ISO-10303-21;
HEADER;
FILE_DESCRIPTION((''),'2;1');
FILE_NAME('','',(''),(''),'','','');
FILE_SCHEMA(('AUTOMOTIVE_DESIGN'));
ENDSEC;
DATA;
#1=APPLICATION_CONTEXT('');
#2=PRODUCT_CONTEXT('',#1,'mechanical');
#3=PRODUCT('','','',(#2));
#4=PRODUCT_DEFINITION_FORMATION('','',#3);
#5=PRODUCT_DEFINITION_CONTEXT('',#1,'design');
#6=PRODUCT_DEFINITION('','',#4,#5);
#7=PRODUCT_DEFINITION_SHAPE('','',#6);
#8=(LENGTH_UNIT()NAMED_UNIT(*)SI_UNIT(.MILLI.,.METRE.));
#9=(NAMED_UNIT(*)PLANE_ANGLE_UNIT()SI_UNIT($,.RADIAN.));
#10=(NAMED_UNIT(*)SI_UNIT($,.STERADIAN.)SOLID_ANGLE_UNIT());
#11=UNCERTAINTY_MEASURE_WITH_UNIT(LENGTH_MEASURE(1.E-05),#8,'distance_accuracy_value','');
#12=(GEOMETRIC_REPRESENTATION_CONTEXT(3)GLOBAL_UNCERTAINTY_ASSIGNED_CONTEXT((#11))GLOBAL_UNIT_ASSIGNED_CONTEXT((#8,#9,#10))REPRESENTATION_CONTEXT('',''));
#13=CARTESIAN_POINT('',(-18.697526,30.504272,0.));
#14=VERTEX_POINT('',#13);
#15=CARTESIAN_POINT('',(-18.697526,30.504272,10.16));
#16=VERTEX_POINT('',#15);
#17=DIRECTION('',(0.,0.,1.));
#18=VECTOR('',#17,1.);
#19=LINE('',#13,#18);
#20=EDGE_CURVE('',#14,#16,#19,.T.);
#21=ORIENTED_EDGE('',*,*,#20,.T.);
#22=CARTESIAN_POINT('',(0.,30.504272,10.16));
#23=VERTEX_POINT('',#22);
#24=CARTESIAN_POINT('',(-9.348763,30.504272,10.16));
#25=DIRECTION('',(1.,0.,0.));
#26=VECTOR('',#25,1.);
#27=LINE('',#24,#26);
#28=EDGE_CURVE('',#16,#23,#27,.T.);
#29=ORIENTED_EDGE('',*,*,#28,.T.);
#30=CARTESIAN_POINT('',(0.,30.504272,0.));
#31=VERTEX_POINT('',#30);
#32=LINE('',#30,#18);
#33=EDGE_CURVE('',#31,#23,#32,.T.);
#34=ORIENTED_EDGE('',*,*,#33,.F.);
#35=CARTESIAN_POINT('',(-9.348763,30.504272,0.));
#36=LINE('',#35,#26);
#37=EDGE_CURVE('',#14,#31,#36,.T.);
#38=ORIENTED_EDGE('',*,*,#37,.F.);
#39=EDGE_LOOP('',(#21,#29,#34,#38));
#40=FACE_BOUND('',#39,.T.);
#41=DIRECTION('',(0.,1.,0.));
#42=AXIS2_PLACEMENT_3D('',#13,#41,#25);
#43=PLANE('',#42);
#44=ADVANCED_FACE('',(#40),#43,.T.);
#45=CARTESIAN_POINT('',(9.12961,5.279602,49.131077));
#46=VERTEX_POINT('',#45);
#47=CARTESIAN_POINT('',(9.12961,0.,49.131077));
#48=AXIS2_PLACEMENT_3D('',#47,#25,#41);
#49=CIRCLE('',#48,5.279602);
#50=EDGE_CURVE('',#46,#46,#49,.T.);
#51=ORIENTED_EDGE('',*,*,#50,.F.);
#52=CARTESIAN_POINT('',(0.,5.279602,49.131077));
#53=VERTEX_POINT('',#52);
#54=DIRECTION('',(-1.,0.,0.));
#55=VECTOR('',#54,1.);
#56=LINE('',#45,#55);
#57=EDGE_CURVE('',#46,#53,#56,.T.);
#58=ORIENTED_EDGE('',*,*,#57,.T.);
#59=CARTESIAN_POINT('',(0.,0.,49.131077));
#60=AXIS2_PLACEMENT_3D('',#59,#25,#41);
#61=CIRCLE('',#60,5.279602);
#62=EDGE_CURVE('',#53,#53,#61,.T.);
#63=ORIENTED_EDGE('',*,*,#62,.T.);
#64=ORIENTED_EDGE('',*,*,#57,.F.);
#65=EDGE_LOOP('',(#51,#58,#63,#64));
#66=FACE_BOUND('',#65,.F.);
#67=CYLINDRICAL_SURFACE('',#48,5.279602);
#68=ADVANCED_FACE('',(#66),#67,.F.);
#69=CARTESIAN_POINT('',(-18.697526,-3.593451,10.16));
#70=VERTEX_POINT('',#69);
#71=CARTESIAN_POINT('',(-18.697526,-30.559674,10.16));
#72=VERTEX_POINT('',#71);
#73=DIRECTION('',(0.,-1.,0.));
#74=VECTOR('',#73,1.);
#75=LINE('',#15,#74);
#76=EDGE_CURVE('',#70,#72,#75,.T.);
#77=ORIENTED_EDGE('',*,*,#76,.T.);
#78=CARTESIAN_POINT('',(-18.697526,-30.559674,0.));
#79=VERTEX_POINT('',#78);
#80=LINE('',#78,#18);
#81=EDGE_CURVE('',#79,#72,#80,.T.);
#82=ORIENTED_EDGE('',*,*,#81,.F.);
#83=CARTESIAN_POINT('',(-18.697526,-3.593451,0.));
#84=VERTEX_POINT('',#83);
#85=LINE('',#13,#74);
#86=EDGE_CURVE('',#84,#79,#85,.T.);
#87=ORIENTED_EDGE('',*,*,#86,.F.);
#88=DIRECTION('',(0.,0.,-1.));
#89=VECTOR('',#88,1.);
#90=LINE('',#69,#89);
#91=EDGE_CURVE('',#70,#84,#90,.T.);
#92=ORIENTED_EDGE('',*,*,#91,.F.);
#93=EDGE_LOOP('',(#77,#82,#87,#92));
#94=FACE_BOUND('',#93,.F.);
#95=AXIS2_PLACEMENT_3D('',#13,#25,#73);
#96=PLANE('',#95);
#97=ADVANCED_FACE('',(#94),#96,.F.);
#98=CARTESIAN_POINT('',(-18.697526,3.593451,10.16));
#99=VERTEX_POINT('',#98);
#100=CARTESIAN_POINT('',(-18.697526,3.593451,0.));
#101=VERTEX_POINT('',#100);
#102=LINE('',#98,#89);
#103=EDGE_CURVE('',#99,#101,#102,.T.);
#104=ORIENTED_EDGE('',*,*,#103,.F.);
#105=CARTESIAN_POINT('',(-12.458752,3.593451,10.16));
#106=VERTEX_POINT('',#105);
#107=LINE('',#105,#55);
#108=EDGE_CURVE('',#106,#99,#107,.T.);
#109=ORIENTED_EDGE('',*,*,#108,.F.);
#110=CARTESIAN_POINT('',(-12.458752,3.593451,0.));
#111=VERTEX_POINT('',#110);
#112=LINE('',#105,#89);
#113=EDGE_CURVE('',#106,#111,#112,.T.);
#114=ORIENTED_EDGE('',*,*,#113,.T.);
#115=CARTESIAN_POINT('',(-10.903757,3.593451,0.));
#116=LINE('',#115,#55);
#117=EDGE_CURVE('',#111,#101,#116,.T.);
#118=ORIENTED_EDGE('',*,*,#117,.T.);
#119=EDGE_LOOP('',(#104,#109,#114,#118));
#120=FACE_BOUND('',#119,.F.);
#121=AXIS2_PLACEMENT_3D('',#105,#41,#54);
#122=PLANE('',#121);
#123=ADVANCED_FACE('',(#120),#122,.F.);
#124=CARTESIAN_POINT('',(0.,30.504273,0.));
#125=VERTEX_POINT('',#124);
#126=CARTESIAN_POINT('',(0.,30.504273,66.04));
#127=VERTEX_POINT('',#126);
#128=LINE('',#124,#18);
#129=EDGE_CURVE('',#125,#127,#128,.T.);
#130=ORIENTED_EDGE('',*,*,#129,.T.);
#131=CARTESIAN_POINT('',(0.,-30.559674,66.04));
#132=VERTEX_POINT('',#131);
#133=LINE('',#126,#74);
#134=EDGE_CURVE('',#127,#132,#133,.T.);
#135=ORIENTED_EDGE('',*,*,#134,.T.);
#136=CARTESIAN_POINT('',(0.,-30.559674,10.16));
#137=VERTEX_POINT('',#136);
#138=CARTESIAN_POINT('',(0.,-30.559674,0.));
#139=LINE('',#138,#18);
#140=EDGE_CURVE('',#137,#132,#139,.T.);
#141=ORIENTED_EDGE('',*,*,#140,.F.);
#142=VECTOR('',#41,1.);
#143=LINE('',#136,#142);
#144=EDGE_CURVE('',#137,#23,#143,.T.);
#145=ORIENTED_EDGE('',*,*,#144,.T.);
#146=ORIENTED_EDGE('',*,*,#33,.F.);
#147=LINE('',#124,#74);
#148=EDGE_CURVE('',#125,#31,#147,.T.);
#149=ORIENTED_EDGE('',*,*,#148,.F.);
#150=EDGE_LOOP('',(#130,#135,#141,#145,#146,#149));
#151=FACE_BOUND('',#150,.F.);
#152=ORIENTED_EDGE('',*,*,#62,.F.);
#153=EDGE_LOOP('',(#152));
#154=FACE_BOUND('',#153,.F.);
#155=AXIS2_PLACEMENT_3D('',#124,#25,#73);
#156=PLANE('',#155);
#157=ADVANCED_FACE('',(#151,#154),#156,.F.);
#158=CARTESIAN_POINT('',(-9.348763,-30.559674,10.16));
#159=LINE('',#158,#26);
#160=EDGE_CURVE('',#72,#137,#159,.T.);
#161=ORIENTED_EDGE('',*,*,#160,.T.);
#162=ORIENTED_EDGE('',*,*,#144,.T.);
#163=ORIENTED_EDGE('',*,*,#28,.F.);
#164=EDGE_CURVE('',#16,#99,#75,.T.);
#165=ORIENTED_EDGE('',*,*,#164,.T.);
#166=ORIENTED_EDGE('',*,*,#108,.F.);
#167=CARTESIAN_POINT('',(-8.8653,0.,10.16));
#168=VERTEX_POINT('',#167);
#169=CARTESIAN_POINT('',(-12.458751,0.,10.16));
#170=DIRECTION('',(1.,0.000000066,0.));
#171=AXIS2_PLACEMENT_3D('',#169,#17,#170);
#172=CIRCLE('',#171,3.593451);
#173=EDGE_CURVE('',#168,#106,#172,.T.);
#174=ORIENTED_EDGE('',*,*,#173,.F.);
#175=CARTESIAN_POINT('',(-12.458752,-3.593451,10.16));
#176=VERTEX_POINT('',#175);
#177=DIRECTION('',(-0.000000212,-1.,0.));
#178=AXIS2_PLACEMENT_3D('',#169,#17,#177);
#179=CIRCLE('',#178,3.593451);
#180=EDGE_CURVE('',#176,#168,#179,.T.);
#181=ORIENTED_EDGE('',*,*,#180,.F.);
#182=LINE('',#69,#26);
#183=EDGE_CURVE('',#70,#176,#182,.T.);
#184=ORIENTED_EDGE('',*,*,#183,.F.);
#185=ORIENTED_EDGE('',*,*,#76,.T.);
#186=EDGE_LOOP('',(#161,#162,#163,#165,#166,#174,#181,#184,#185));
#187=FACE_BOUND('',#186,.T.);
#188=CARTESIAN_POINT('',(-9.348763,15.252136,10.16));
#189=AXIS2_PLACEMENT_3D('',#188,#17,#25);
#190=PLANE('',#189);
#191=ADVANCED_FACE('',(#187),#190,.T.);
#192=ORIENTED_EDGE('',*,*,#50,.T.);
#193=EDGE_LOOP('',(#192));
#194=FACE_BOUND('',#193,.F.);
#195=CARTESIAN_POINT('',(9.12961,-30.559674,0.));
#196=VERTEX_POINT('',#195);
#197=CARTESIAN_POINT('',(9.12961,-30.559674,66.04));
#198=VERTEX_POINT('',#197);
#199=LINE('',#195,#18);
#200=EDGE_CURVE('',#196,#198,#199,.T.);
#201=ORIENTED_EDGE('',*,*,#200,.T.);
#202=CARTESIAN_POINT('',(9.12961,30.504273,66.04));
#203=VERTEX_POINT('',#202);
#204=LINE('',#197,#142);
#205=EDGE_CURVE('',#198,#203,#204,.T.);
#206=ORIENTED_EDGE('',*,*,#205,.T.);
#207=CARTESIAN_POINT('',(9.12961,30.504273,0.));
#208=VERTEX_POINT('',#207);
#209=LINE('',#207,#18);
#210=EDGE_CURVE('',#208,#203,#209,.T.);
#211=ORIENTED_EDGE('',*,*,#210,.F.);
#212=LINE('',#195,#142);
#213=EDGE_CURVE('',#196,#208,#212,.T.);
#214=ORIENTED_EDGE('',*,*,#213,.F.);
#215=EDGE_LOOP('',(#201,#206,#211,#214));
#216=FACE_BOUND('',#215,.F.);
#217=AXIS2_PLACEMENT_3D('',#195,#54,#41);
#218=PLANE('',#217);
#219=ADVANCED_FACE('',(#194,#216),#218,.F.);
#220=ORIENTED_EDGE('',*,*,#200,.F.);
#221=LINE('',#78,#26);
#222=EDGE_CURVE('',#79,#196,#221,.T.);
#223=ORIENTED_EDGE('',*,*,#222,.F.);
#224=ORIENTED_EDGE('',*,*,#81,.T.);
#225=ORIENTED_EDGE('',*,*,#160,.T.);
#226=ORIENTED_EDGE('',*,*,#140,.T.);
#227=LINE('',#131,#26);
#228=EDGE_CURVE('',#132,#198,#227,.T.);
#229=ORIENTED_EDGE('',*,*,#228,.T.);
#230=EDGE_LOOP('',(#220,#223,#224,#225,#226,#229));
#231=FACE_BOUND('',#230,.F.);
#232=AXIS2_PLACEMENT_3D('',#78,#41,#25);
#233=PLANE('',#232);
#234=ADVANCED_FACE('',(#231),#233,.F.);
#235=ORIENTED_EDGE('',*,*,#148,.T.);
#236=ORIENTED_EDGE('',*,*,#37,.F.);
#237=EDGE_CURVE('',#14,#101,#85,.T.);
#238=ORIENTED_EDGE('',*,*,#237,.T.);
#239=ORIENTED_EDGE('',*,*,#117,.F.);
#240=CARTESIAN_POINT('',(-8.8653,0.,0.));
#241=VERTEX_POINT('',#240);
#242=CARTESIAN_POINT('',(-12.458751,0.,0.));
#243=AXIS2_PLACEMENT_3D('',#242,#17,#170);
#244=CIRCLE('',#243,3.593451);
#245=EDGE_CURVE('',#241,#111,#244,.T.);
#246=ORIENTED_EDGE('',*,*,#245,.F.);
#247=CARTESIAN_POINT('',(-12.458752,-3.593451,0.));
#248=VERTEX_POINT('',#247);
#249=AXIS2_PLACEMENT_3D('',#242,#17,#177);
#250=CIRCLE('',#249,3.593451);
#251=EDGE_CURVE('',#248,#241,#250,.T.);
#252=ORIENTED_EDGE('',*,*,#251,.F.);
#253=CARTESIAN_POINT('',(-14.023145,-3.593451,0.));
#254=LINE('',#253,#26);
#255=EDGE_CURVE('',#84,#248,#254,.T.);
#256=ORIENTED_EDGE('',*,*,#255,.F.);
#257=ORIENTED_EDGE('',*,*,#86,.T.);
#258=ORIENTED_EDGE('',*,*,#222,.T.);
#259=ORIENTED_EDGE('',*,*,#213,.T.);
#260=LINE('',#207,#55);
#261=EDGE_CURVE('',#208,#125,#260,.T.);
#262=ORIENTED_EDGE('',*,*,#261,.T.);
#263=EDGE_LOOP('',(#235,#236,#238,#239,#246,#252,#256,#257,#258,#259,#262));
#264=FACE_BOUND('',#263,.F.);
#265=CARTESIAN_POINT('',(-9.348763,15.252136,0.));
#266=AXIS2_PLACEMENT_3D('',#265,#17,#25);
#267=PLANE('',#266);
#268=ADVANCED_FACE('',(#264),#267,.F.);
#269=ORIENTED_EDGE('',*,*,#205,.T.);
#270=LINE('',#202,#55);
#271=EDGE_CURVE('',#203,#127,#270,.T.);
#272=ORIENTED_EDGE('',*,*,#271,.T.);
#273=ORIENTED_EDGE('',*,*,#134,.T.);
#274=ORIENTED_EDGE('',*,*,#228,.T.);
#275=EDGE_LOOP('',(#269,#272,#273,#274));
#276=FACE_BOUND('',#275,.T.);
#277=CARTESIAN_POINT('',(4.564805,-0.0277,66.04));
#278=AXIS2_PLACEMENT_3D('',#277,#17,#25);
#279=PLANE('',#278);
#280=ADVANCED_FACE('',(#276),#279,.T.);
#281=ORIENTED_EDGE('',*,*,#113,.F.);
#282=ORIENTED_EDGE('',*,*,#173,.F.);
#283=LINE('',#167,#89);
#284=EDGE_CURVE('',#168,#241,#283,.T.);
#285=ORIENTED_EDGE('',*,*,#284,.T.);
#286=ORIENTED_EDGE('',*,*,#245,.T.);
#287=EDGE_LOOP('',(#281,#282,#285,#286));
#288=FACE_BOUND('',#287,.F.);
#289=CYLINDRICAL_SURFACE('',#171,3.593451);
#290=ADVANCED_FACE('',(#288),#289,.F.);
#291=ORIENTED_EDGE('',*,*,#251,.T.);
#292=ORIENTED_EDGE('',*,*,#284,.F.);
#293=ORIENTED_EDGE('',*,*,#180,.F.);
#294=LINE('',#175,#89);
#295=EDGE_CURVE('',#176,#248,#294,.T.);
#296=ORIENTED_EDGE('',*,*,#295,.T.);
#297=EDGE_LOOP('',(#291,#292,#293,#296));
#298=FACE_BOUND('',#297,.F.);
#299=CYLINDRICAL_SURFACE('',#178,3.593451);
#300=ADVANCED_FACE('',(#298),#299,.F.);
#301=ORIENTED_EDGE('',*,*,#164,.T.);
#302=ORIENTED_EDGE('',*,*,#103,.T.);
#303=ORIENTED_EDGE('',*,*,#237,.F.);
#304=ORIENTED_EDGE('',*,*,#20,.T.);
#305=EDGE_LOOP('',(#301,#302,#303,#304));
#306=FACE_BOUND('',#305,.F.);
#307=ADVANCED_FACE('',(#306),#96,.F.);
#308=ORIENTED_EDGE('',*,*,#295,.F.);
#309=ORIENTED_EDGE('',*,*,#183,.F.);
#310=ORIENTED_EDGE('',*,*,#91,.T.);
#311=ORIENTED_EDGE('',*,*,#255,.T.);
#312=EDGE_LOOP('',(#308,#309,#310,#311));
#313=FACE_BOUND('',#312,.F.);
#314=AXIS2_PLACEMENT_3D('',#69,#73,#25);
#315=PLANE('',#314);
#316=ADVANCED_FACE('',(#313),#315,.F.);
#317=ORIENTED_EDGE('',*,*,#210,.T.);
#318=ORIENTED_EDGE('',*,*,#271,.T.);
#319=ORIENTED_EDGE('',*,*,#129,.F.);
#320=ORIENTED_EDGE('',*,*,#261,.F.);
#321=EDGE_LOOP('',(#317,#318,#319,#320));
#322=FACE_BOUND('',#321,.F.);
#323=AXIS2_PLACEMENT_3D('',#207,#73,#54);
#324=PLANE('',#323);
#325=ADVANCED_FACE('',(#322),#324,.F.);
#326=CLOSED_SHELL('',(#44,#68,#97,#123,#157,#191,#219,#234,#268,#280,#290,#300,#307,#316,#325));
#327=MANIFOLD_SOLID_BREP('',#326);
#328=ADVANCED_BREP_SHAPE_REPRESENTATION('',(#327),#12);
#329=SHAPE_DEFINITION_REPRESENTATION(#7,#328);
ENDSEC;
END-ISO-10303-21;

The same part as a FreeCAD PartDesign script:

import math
import FreeCAD as App
import Part
import Sketcher

V = App.Vector
Q = App.Units.Quantity


def add_polygon(sketch, points):
    """Adds a closed chain of lines whose ends are joined by coincident constraints."""
    first, n = sketch.GeometryCount, len(points)
    for a, b in zip(points, points[1:] + points[:1]):
        sketch.addGeometry(Part.LineSegment(App.Vector(*a, 0), App.Vector(*b, 0)), False)
    for i in range(n):
        sketch.addConstraint(Sketcher.Constraint("Coincident", first + i, 2, first + (i + 1) % n, 1))

doc = App.newDocument("Part")
params = doc.addObject("Spreadsheet::Sheet", "Params")
for row, (alias, value) in enumerate([
    ("pad1_length", "2.6 in"),
    ("pad2_length", "0.4 in"),
    ("pocket1_length", "1 in"),
    ("pocket2_length", "1 in"),
], start=1):
    params.set(f"A{row}", alias)
    params.set(f"B{row}", "=" + value)
    params.setAlias(f"B{row}", alias)

body = doc.addObject("PartDesign::Body", "Body")

# Sketch on XY plane
sketch1 = body.newObject("Sketcher::SketchObject", "Sketch")
sketch1.AttachmentSupport = (doc.getObject("XY_Plane"), [""])
sketch1.MapMode = "FlatFace"
add_polygon(sketch1, [(0, 30.504273), (0, -30.559674), (9.12961, -30.559674), (9.12961, 30.504273)])  # lines 0-3
sketch1.addConstraint(Sketcher.Constraint("Vertical", 0))
sketch1.addConstraint(Sketcher.Constraint("Horizontal", 1))
sketch1.addConstraint(Sketcher.Constraint("Vertical", 2))
sketch1.addConstraint(Sketcher.Constraint("Horizontal", 3))
sketch1.addConstraint(Sketcher.Constraint("PointOnObject", 0, 2, -2))
sketch1.addConstraint(Sketcher.Constraint("DistanceX", 1, 1, 1, 2, Q("9.12961 mm")))
sketch1.addConstraint(Sketcher.Constraint("DistanceY", 0, 2, 0, 1, Q("61.063947 mm")))
sketch1.addConstraint(Sketcher.Constraint("DistanceY", 0, 2, -1, 1, Q("30.559674 mm")))
pad1 = body.newObject("PartDesign::Pad", "Pad")
pad1.Profile = sketch1
pad1.setExpression("Length", "Params.pad1_length")

# Sketch on XY plane
sketch2 = body.newObject("Sketcher::SketchObject", "Sketch001")
sketch2.AttachmentSupport = (doc.getObject("XY_Plane"), [""])
sketch2.MapMode = "FlatFace"
add_polygon(sketch2, [(-18.697526, -30.559674), (0, -30.559674), (0, 30.504272), (-18.697526, 30.504272)])  # lines 0-3
sketch2.addConstraint(Sketcher.Constraint("Horizontal", 0))
sketch2.addConstraint(Sketcher.Constraint("Vertical", 1))
sketch2.addConstraint(Sketcher.Constraint("Horizontal", 2))
sketch2.addConstraint(Sketcher.Constraint("Vertical", 3))
sketch2.addConstraint(Sketcher.Constraint("PointOnObject", 0, 2, -2))
sketch2.addConstraint(Sketcher.Constraint("DistanceX", 0, 1, 0, 2, Q("18.697526 mm")))
sketch2.addConstraint(Sketcher.Constraint("DistanceY", 1, 1, 1, 2, Q("61.063947 mm")))
sketch2.addConstraint(Sketcher.Constraint("DistanceY", 0, 2, -1, 1, Q("30.559674 mm")))
pad2 = body.newObject("PartDesign::Pad", "Pad001")
pad2.Profile = sketch2
pad2.setExpression("Length", "Params.pad2_length")

# Sketch on YZ plane
sketch3 = body.newObject("Sketcher::SketchObject", "Sketch002")
sketch3.AttachmentSupport = (doc.getObject("YZ_Plane"), [""])
sketch3.MapMode = "FlatFace"
sketch3.AttachmentOffset = App.Placement(V(0, 0, 9.12961), App.Rotation())
sketch3.addGeometry(Part.Circle(V(0, 49.131077, 0), V(0, 0, 1), 5.279602), False)
sketch3.addConstraint(Sketcher.Constraint("PointOnObject", 0, 3, -2))
sketch3.addConstraint(Sketcher.Constraint("Diameter", 0, Q("10.559204 mm")))
sketch3.addConstraint(Sketcher.Constraint("DistanceY", -1, 1, 0, 3, Q("49.131077 mm")))
pocket1 = body.newObject("PartDesign::Pocket", "Pocket")
pocket1.Profile = sketch3
pocket1.setExpression("Length", "Params.pocket1_length")

# Sketch on XY plane
sketch4 = body.newObject("Sketcher::SketchObject", "Sketch003")
sketch4.AttachmentSupport = (doc.getObject("XY_Plane"), [""])
sketch4.MapMode = "FlatFace"
sketch4.AttachmentOffset = App.Placement(V(0, 0, 0.4 * 25.4), App.Rotation())
sketch4.addGeometry(Part.ArcOfCircle(Part.Circle(V(-12.458751, 0, 0), V(0, 0, 1), 3.593451), math.radians(-90.000012), math.radians(-0.000004)), False)
sketch4.addGeometry(Part.ArcOfCircle(Part.Circle(V(-12.458751, 0, 0), V(0, 0, 1), 3.593451), math.radians(0.000004), math.radians(90.000012)), False)
sketch4.addGeometry(Part.LineSegment(V(-12.458752, 3.593451, 0), V(-18.697526, 3.593451, 0)), False)
sketch4.addGeometry(Part.LineSegment(V(-18.697526, 3.593451, 0), V(-18.697526, -3.593451, 0)), False)
sketch4.addGeometry(Part.LineSegment(V(-18.697526, -3.593451, 0), V(-12.458752, -3.593451, 0)), False)
sketch4.addConstraint(Sketcher.Constraint("Tangent", 0, 2, 1, 1))
sketch4.addConstraint(Sketcher.Constraint("Tangent", 1, 2, 2, 1))
sketch4.addConstraint(Sketcher.Constraint("Coincident", 2, 2, 3, 1))
sketch4.addConstraint(Sketcher.Constraint("Coincident", 3, 2, 4, 1))
sketch4.addConstraint(Sketcher.Constraint("Tangent", 4, 2, 0, 1))
sketch4.addConstraint(Sketcher.Constraint("Horizontal", 2))
sketch4.addConstraint(Sketcher.Constraint("Vertical", 3))
sketch4.addConstraint(Sketcher.Constraint("Horizontal", 4))
sketch4.addConstraint(Sketcher.Constraint("Equal", 0, 1))
sketch4.addConstraint(Sketcher.Constraint("PointOnObject", 0, 3, -1))
sketch4.addConstraint(Sketcher.Constraint("PointOnObject", 0, 2, -1))
sketch4.addConstraint(Sketcher.Constraint("Radius", 0, Q("3.593451 mm")))
sketch4.addConstraint(Sketcher.Constraint("DistanceX", 0, 2, -1, 1, Q("8.8653 mm")))
sketch4.addConstraint(Sketcher.Constraint("DistanceX", 2, 2, 2, 1, Q("6.238774 mm")))
pocket2 = body.newObject("PartDesign::Pocket", "Pocket001")
pocket2.Profile = sketch4
pocket2.setExpression("Length", "Params.pocket2_length")

doc.recompute()
